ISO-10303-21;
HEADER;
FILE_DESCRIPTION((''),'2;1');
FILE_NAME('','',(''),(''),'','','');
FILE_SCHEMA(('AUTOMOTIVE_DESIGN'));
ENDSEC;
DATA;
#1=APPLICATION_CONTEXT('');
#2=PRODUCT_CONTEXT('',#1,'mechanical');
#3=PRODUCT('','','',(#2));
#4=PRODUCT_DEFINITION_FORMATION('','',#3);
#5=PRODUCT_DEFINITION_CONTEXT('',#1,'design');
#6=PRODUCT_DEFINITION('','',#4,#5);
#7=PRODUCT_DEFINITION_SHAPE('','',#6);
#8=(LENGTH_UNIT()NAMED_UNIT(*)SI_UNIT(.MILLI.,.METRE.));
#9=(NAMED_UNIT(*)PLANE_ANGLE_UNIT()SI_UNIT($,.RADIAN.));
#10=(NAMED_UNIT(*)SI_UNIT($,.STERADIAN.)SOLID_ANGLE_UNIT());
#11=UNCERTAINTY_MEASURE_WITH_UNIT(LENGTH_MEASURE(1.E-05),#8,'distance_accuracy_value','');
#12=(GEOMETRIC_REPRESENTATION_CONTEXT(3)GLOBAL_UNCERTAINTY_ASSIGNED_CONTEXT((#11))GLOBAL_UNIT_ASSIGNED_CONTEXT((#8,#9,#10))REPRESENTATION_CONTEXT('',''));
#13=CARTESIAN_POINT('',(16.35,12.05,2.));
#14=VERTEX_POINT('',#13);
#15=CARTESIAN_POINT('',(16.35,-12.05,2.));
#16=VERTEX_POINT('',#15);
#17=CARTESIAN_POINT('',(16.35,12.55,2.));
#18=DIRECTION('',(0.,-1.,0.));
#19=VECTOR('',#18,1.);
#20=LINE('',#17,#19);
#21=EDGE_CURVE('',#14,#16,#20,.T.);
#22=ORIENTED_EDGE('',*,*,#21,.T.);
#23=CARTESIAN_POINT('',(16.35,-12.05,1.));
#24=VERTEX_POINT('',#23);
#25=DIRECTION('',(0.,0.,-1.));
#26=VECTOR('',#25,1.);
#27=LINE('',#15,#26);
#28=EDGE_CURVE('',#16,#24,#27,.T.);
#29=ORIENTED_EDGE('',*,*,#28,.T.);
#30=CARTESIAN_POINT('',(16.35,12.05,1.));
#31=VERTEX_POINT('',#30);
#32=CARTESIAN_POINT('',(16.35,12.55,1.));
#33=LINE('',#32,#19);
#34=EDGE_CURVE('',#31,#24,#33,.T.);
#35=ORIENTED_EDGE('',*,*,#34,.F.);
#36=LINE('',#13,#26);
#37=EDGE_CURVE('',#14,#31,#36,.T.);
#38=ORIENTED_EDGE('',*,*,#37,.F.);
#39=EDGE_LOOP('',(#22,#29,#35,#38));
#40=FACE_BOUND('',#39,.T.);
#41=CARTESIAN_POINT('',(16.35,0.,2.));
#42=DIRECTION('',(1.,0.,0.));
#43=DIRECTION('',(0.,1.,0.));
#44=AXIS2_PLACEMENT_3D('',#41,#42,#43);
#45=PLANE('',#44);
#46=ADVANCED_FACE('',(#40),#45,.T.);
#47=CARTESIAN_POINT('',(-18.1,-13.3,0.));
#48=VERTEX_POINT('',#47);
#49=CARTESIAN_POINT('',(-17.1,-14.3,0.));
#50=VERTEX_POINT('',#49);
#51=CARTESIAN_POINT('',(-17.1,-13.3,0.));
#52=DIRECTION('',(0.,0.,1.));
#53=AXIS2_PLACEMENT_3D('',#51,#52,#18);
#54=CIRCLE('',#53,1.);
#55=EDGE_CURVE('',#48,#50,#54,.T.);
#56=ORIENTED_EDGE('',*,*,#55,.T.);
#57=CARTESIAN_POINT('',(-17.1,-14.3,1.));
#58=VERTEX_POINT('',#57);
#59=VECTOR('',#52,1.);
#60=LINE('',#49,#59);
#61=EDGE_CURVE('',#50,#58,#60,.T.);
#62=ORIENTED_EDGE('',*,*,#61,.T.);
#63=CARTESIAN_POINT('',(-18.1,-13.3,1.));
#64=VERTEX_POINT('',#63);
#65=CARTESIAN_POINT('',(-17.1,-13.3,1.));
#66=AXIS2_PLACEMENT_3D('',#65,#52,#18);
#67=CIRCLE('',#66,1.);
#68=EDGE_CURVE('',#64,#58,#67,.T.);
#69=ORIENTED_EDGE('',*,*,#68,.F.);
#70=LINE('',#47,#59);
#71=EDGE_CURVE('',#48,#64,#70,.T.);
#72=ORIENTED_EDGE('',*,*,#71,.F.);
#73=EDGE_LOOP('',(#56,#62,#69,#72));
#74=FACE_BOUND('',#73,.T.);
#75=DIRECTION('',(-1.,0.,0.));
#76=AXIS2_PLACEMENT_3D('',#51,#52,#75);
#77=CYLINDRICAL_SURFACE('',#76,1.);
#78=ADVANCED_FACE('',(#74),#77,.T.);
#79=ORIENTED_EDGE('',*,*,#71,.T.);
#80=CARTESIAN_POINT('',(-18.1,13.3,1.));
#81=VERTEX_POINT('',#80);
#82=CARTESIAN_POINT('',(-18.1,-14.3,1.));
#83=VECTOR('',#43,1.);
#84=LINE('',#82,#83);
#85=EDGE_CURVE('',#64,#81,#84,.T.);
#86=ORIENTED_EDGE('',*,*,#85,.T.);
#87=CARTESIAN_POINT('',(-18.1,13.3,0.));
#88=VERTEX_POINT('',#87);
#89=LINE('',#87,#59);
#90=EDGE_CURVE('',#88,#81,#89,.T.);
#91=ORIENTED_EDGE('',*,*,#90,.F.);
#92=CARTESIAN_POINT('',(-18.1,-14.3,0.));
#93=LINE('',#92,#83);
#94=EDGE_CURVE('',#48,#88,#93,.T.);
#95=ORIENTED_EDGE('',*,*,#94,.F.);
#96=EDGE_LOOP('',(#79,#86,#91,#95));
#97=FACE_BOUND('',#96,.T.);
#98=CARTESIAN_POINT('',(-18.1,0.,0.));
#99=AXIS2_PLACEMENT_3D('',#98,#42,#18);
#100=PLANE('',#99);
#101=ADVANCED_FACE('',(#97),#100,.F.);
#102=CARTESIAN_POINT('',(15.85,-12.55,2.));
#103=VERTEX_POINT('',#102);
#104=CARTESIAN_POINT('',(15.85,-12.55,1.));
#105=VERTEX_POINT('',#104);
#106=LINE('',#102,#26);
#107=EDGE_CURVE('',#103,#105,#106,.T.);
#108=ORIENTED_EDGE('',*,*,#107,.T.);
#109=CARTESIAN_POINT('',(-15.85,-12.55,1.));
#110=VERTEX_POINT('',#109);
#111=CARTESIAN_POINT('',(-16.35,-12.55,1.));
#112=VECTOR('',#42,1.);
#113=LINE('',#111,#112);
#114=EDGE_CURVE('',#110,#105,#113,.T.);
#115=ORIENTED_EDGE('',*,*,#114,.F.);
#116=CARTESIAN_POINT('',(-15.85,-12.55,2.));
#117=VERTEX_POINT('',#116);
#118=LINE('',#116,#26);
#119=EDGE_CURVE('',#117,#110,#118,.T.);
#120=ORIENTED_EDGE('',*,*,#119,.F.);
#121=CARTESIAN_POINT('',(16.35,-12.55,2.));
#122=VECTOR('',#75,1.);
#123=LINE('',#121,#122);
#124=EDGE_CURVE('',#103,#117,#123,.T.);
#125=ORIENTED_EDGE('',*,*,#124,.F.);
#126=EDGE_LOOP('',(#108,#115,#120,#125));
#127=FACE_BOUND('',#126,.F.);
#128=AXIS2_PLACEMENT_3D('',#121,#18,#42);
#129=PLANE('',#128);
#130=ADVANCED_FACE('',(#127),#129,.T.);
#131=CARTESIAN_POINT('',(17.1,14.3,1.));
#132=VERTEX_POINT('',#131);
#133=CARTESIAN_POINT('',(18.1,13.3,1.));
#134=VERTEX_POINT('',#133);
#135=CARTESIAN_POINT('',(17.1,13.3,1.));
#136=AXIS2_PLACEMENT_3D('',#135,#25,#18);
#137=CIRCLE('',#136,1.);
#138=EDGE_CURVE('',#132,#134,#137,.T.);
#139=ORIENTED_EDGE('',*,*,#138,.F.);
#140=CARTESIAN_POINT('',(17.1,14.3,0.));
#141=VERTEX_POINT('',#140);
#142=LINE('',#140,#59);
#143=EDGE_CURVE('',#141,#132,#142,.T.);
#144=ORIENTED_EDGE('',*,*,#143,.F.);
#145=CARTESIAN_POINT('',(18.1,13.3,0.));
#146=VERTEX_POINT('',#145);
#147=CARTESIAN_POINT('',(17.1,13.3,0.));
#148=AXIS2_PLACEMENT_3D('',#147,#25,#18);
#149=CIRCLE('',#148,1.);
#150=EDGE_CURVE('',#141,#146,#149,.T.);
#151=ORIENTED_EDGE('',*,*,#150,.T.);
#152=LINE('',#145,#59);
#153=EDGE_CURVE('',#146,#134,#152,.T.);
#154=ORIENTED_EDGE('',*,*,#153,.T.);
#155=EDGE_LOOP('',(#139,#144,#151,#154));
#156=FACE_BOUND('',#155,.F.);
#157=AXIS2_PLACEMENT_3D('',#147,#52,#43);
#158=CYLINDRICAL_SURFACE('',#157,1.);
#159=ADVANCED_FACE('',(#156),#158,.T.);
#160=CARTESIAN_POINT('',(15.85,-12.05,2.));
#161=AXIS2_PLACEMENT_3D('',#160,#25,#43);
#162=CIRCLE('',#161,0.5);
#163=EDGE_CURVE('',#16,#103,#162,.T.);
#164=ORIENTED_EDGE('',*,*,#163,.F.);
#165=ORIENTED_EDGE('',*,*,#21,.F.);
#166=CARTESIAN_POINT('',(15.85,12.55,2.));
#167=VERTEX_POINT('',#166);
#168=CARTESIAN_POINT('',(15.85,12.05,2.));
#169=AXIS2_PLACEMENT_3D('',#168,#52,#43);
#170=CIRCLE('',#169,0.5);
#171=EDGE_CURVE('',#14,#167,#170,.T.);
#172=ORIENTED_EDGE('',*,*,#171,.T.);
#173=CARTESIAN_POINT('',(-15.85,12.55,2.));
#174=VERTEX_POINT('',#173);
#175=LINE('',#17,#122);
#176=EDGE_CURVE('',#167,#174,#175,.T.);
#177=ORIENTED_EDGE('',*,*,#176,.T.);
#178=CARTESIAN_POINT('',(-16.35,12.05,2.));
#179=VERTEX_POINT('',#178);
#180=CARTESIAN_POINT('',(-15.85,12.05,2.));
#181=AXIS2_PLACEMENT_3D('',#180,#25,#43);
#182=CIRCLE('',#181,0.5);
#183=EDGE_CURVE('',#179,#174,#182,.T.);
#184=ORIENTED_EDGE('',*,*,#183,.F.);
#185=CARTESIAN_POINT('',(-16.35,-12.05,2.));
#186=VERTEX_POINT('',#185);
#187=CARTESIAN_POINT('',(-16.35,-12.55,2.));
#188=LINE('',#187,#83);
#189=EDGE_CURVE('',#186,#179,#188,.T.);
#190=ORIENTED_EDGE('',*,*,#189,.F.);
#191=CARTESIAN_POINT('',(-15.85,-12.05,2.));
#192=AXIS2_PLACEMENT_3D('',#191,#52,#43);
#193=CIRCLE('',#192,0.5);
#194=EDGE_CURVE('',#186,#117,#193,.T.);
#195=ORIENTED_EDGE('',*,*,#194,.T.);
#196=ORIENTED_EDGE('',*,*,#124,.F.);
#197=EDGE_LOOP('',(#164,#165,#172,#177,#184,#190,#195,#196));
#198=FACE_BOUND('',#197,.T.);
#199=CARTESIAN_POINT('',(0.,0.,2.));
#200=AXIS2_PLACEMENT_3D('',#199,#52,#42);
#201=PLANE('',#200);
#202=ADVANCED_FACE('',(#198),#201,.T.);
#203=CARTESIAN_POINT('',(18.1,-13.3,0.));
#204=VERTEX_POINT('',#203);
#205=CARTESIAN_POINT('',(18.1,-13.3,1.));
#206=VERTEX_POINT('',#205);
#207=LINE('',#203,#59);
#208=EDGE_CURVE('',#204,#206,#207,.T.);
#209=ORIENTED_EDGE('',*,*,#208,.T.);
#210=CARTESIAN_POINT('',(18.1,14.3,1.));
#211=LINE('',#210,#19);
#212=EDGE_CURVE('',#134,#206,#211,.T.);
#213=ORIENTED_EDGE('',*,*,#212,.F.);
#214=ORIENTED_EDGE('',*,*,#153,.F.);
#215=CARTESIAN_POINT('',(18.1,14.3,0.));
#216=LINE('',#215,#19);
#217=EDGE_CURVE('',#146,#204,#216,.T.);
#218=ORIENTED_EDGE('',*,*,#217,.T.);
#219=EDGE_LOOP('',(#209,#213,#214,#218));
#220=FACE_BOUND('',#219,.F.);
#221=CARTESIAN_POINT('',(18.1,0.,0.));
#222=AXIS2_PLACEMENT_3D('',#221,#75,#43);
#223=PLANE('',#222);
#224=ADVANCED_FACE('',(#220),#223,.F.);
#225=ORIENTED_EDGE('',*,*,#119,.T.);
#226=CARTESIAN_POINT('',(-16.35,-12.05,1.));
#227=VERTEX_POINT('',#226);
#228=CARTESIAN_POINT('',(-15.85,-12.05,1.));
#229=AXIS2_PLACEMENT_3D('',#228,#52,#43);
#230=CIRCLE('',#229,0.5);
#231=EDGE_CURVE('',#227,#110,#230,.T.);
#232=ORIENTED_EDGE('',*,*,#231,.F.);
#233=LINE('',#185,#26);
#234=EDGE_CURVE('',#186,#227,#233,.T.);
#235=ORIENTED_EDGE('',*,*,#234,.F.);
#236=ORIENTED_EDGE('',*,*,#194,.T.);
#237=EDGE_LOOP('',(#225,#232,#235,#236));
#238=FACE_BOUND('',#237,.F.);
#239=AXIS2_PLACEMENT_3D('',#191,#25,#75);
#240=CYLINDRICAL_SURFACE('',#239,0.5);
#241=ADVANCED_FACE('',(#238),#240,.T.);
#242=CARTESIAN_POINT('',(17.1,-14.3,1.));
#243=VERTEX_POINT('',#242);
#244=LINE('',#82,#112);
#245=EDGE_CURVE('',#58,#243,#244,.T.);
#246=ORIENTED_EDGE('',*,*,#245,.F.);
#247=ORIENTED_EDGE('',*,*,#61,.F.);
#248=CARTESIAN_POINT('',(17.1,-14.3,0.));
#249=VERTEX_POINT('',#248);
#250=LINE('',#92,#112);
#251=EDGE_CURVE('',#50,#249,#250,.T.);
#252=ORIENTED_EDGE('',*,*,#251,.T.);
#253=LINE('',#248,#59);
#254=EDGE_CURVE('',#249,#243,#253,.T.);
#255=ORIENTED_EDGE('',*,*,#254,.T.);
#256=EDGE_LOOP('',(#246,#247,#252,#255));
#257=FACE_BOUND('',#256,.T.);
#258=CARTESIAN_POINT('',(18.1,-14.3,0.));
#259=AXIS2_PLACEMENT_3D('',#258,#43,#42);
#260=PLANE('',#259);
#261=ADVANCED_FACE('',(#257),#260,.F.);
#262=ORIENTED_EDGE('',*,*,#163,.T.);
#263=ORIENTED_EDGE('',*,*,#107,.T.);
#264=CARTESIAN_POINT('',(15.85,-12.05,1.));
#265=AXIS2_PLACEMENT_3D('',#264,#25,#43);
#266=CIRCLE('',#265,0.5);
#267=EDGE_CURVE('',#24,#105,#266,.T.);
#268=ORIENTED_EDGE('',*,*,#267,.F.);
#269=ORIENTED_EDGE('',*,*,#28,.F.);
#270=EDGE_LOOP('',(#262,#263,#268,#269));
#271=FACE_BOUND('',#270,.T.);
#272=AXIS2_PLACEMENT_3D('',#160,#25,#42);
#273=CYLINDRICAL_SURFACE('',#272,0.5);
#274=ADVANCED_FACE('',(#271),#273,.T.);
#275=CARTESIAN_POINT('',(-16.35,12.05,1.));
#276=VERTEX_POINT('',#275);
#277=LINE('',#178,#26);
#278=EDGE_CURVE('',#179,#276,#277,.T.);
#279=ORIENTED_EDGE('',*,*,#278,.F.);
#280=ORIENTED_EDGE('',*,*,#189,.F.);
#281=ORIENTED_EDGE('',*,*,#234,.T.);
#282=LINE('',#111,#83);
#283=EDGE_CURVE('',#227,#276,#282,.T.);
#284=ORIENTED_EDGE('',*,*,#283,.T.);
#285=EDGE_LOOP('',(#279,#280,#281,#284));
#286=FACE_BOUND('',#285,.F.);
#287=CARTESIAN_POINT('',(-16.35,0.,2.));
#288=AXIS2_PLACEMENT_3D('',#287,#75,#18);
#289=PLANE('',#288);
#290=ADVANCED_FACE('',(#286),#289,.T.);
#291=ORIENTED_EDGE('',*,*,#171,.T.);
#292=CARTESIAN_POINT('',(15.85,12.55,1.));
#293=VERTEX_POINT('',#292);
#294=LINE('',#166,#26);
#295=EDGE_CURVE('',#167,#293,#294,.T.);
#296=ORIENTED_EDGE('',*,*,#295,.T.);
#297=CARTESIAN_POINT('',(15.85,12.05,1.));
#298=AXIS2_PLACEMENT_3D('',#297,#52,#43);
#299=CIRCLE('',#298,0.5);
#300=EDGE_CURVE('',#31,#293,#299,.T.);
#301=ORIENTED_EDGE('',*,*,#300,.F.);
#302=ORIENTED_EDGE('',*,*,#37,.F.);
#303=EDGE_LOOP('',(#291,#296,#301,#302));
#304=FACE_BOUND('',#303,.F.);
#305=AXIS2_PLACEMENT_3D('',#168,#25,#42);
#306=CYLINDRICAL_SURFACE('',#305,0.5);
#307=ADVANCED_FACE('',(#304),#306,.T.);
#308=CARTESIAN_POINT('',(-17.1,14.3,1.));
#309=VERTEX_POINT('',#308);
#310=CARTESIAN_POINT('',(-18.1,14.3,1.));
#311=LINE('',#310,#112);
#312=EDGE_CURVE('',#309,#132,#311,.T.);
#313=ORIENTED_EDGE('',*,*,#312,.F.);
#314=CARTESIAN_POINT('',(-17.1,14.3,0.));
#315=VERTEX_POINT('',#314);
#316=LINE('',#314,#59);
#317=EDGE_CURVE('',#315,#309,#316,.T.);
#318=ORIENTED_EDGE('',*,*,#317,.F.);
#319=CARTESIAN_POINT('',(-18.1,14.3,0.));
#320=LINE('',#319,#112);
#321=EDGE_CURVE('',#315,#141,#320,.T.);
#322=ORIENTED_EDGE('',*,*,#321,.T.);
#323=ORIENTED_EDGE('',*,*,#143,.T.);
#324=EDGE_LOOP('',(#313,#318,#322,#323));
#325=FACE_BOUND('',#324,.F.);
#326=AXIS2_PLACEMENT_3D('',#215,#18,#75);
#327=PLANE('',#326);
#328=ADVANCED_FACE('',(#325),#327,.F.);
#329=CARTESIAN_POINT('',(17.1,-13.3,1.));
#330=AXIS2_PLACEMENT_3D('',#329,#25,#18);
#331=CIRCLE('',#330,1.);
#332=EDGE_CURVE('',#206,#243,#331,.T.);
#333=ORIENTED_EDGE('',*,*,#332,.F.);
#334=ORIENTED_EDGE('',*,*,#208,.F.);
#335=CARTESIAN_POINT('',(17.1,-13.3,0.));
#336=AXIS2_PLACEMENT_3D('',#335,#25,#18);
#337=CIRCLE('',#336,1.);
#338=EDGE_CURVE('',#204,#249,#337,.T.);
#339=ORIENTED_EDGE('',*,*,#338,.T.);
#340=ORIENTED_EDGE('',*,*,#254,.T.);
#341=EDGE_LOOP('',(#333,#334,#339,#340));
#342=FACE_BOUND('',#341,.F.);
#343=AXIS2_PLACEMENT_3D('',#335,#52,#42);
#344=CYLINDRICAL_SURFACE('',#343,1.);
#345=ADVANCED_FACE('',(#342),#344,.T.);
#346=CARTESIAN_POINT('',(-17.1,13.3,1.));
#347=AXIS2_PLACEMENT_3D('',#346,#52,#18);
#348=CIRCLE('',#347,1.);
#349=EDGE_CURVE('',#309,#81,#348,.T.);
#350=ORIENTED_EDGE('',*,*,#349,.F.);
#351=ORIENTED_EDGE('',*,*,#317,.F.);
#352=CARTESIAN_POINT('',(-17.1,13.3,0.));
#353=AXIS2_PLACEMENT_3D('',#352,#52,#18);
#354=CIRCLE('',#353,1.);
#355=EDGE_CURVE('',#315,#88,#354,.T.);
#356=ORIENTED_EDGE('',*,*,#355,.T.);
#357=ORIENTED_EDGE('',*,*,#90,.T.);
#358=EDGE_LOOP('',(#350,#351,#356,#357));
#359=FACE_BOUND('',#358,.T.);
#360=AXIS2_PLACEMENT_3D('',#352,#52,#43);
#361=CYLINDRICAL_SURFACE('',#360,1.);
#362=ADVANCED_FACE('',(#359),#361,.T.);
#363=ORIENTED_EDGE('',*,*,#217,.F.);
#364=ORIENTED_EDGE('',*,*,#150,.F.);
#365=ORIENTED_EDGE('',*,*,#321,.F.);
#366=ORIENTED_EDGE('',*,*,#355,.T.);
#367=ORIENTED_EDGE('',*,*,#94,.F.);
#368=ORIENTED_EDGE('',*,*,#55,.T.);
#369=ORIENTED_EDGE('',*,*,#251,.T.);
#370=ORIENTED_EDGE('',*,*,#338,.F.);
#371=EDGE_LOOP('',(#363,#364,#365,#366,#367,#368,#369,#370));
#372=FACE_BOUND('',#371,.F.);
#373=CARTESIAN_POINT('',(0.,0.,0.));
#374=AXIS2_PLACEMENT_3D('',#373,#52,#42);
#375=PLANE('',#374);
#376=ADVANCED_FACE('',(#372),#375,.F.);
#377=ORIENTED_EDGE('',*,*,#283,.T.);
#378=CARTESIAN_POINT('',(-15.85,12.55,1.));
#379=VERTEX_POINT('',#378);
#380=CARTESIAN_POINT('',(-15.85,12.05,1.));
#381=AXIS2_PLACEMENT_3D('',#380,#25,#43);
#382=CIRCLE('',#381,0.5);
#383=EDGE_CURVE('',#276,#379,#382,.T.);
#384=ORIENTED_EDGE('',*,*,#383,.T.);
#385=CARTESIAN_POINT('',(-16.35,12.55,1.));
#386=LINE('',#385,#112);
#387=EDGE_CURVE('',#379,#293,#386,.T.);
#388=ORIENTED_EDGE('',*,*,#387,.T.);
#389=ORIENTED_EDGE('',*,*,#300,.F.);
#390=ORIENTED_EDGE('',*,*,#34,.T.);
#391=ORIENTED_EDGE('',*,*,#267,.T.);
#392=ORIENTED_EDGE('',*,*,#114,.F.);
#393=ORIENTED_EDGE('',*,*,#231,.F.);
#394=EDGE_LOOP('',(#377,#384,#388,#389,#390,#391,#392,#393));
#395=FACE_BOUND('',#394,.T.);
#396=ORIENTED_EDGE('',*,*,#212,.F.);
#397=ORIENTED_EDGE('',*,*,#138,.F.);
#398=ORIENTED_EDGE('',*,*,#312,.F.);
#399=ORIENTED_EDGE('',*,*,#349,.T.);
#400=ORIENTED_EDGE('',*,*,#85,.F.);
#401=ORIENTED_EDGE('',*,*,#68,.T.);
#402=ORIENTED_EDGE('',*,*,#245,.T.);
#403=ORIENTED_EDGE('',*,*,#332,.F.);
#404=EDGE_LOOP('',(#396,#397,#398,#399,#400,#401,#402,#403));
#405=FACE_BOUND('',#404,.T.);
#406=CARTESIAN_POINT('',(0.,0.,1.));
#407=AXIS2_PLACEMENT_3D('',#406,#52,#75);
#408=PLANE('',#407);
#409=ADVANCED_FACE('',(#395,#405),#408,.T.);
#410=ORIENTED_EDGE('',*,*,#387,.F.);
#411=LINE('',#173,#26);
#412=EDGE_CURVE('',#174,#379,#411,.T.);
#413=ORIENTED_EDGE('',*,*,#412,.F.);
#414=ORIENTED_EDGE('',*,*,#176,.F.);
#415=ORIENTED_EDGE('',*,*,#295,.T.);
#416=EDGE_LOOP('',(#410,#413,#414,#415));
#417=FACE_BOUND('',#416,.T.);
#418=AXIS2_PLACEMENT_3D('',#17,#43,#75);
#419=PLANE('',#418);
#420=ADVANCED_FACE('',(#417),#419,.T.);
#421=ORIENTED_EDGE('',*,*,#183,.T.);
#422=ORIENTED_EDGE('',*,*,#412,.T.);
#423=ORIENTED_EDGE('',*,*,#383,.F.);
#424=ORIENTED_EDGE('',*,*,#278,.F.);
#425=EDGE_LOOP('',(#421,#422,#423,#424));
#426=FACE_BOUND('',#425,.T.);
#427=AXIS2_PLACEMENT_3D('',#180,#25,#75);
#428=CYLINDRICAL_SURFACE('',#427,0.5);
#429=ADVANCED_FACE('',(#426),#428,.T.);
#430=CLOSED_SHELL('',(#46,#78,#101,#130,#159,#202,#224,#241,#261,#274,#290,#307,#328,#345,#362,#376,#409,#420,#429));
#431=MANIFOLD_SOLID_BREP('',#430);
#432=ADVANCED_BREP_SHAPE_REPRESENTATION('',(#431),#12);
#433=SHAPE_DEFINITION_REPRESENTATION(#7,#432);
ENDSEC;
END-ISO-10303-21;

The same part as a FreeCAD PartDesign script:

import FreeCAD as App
import Part
import Sketcher

V = App.Vector


def edges_at(feature, points):
    """Names of the edges that pass closest to the given points."""
    edges = feature.Shape.Edges
    near = lambda p: min(range(len(edges)), key=lambda i: edges[i].distToShape(Part.Vertex(*p))[0])
    return sorted({f"Edge{near(p) + 1}" for p in points})

doc = App.newDocument("Part")
body = doc.addObject("PartDesign::Body", "Body")

sketch1 = body.newObject("Sketcher::SketchObject", "Sketch")
sketch1.AttachmentSupport = (doc.getObject("XY_Plane"), [""])
sketch1.MapMode = "FlatFace"
sketch1.addGeometry([
    Part.LineSegment(V(0, 14, 0), V(0, 0, 0)),
    Part.LineSegment(V(0, 0, 0), V(18, 0, 0)),
    Part.LineSegment(V(18, 0, 0), V(18, 14, 0)),
    Part.LineSegment(V(18, 14, 0), V(0, 14, 0)),
], False)
sketch1.addConstraint([
    Sketcher.Constraint("Coincident", 0, 2, 1, 1),
    Sketcher.Constraint("Coincident", 1, 2, 2, 1),
    Sketcher.Constraint("Coincident", 2, 2, 3, 1),
    Sketcher.Constraint("Coincident", 3, 2, 0, 1),
    Sketcher.Constraint("Vertical", 0),
    Sketcher.Constraint("Horizontal", 1),
    Sketcher.Constraint("Vertical", 2),
    Sketcher.Constraint("Horizontal", 3),
    Sketcher.Constraint("Coincident", 0, 2, -1, 1),
    Sketcher.Constraint("DistanceX", 1, 1, 1, 2, 18.1),
    Sketcher.Constraint("DistanceY", 0, 2, 0, 1, 14.3),
])
pad1 = body.newObject("PartDesign::Pad", "Pad")
pad1.Profile = sketch1
pad1.Length = 2

sketch2 = body.newObject("Sketcher::SketchObject", "Sketch001")
sketch2.AttachmentSupport = (doc.getObject("XY_Plane"), [""])
sketch2.MapMode = "FlatFace"
sketch2.AttachmentOffset = App.Placement(V(0, 0, 2), App.Rotation())
sketch2.addGeometry([
    Part.LineSegment(V(16.4, 12.6, 0), V(16.4, 0, 0)),
    Part.LineSegment(V(16.4, 0, 0), V(18.1, 0, 0)),
    Part.LineSegment(V(18.1, 0, 0), V(18.1, 14.3, 0)),
    Part.LineSegment(V(18.1, 14.3, 0), V(0, 14.3, 0)),
    Part.LineSegment(V(0, 14.3, 0), V(0, 12.6, 0)),
    Part.LineSegment(V(0, 12.6, 0), V(16.4, 12.6, 0)),
], False)
sketch2.addConstraint([
    Sketcher.Constraint("Coincident", 0, 2, 1, 1),
    Sketcher.Constraint("Coincident", 1, 2, 2, 1),
    Sketcher.Constraint("Coincident", 2, 2, 3, 1),
    Sketcher.Constraint("Coincident", 3, 2, 4, 1),
    Sketcher.Constraint("Coincident", 4, 2, 5, 1),
    Sketcher.Constraint("Coincident", 5, 2, 0, 1),
    Sketcher.Constraint("Vertical", 0),
    Sketcher.Constraint("Horizontal", 1),
    Sketcher.Constraint("Vertical", 2),
    Sketcher.Constraint("Horizontal", 3),
    Sketcher.Constraint("Vertical", 4),
    Sketcher.Constraint("Horizontal", 5),
    Sketcher.Constraint("PointOnObject", 0, 2, -1),
    Sketcher.Constraint("PointOnObject", 3, 2, -2),
    Sketcher.Constraint("Equal", 1, 4),
    Sketcher.Constraint("DistanceX", 5, 1, 5, 2, 16.35),
    Sketcher.Constraint("DistanceY", 0, 2, 0, 1, 12.55),
    Sketcher.Constraint("DistanceX", 3, 2, 3, 1, 18.1),
])
pocket1 = body.newObject("PartDesign::Pocket", "Pocket")
pocket1.Profile = sketch2
pocket1.Length = 1
doc.recompute()

mirrored = body.newObject("PartDesign::Mirrored", "Mirrored")
mirrored.TransformMode = "Transform body"
mirrored.MirrorPlane = (doc.getObject("YZ_Plane"), [""])
body.Tip = mirrored
doc.recompute()

mirrored2 = body.newObject("PartDesign::Mirrored", "Mirrored001")
mirrored2.TransformMode = "Transform body"
mirrored2.MirrorPlane = (doc.getObject("XZ_Plane"), [""])
body.Tip = mirrored2
doc.recompute()

fillet = body.newObject("PartDesign::Fillet", "Fillet")
fillet.Base = (mirrored2, edges_at(mirrored2, [
    (-16.35, -12.55, 1.5),
    (-16.35, 12.55, 1.5),
    (16.35, 12.55, 1.5),
    (16.35, -12.55, 1.5),
]))
fillet.Radius = 0.5
doc.recompute()

fillet2 = body.newObject("PartDesign::Fillet", "Fillet001")
fillet2.Base = (fillet, edges_at(fillet, [
    (-18.1, -14.3, 0.5),
    (-18.1, 14.3, 0.5),
    (18.1, 14.3, 0.5),
    (18.1, -14.3, 0.5),
]))
fillet2.Radius = 1

doc.recompute()
